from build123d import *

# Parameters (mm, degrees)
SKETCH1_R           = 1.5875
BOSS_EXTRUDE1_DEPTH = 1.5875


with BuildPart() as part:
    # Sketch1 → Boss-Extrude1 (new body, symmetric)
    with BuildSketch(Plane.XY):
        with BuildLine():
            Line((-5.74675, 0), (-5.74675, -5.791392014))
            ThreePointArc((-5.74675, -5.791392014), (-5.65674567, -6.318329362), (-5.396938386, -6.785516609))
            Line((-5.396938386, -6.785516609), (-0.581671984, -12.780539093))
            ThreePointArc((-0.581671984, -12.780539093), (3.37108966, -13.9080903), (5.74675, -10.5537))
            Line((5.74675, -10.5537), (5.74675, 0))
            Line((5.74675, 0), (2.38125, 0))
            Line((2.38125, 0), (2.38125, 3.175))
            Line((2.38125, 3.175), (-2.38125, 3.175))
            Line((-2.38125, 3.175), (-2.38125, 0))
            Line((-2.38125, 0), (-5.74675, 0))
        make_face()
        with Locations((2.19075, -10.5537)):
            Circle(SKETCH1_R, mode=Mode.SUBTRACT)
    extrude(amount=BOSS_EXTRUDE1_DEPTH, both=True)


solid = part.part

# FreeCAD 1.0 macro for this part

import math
import FreeCAD as App
import Part
import Sketcher

V = App.Vector
Q = App.Units.Quantity

doc = App.newDocument("Part")
body = doc.addObject("PartDesign::Body", "Body")

sketch1 = body.newObject("Sketcher::SketchObject", "Sketch")
sketch1.AttachmentSupport = (doc.getObject("XY_Plane"), [""])
sketch1.MapMode = "FlatFace"
sketch1.addGeometry([
    Part.LineSegment(V(-5.7, 0, 0), V(-5.7, -5.8, 0)),
    Part.ArcOfCircle(Part.Circle(V(-4.2, -5.8, 0), V(0, 0, 1), 1.6), math.radians(180), math.radians(219)),
    Part.LineSegment(V(-5.4, -6.8, 0), V(-0.6, -12.8, 0)),
    Part.ArcOfCircle(Part.Circle(V(2.2, -10.6, 0), V(0, 0, 1), 3.6), math.radians(-141), math.radians(0)),
    Part.LineSegment(V(5.7, -10.6, 0), V(5.7, 0, 0)),
    Part.LineSegment(V(5.7, 0, 0), V(2.4, 0, 0)),
    Part.LineSegment(V(2.4, 0, 0), V(2.4, 3.2, 0)),
    Part.LineSegment(V(2.4, 3.2, 0), V(-2.4, 3.2, 0)),
    Part.LineSegment(V(-2.4, 3.2, 0), V(-2.4, 0, 0)),
    Part.LineSegment(V(-2.4, 0, 0), V(-5.7, 0, 0)),
    Part.Circle(V(2.2, -10.6, 0), V(0, 0, 1), 1.6),
], False)
sketch1.addConstraint([
    Sketcher.Constraint("Tangent", 0, 2, 1, 1),
    Sketcher.Constraint("Tangent", 1, 2, 2, 1),
    Sketcher.Constraint("Tangent", 2, 2, 3, 1),
    Sketcher.Constraint("Tangent", 3, 2, 4, 1),
    Sketcher.Constraint("Coincident", 4, 2, 5, 1),
    Sketcher.Constraint("Coincident", 5, 2, 6, 1),
    Sketcher.Constraint("Coincident", 6, 2, 7, 1),
    Sketcher.Constraint("Coincident", 7, 2, 8, 1),
    Sketcher.Constraint("Coincident", 8, 2, 9, 1),
    Sketcher.Constraint("Coincident", 9, 2, 0, 1),
    Sketcher.Constraint("Vertical", 0),
    Sketcher.Constraint("Vertical", 4),
    Sketcher.Constraint("Horizontal", 5),
    Sketcher.Constraint("Vertical", 6),
    Sketcher.Constraint("Horizontal", 7),
    Sketcher.Constraint("Vertical", 8),
    Sketcher.Constraint("Horizontal", 9),
    Sketcher.Constraint("Coincident", 10, 3, 3, 3),
    Sketcher.Constraint("Equal", 1, 10),
    Sketcher.Constraint("Symmetric", 5, 2, 8, 2, -1, 1),
    Sketcher.Constraint("Symmetric", 4, 2, 9, 2, -2),
    Sketcher.Constraint("Radius", 3, Q("0.14 in")),
    Sketcher.Constraint("Diameter", 10, Q("0.125 in")),
    Sketcher.Constraint("DistanceX", 7, 2, 7, 1, Q("0.1875 in")),
    Sketcher.Constraint("DistanceY", 6, 1, 6, 2, Q("0.125 in")),
    Sketcher.Constraint("DistanceX", 1, 3, 3, 3, Q("0.25 in")),
    Sketcher.Constraint("DistanceY", 4, 1, 4, 2, Q("0.4155 in")),
    Sketcher.Constraint("DistanceY", 0, 2, 0, 1, Q("5.791392 mm")),
])
pad1 = body.newObject("PartDesign::Pad", "Pad")
pad1.Profile = sketch1
pad1.Length = Q("0.125 in")
pad1.Midplane = True

doc.recompute()
